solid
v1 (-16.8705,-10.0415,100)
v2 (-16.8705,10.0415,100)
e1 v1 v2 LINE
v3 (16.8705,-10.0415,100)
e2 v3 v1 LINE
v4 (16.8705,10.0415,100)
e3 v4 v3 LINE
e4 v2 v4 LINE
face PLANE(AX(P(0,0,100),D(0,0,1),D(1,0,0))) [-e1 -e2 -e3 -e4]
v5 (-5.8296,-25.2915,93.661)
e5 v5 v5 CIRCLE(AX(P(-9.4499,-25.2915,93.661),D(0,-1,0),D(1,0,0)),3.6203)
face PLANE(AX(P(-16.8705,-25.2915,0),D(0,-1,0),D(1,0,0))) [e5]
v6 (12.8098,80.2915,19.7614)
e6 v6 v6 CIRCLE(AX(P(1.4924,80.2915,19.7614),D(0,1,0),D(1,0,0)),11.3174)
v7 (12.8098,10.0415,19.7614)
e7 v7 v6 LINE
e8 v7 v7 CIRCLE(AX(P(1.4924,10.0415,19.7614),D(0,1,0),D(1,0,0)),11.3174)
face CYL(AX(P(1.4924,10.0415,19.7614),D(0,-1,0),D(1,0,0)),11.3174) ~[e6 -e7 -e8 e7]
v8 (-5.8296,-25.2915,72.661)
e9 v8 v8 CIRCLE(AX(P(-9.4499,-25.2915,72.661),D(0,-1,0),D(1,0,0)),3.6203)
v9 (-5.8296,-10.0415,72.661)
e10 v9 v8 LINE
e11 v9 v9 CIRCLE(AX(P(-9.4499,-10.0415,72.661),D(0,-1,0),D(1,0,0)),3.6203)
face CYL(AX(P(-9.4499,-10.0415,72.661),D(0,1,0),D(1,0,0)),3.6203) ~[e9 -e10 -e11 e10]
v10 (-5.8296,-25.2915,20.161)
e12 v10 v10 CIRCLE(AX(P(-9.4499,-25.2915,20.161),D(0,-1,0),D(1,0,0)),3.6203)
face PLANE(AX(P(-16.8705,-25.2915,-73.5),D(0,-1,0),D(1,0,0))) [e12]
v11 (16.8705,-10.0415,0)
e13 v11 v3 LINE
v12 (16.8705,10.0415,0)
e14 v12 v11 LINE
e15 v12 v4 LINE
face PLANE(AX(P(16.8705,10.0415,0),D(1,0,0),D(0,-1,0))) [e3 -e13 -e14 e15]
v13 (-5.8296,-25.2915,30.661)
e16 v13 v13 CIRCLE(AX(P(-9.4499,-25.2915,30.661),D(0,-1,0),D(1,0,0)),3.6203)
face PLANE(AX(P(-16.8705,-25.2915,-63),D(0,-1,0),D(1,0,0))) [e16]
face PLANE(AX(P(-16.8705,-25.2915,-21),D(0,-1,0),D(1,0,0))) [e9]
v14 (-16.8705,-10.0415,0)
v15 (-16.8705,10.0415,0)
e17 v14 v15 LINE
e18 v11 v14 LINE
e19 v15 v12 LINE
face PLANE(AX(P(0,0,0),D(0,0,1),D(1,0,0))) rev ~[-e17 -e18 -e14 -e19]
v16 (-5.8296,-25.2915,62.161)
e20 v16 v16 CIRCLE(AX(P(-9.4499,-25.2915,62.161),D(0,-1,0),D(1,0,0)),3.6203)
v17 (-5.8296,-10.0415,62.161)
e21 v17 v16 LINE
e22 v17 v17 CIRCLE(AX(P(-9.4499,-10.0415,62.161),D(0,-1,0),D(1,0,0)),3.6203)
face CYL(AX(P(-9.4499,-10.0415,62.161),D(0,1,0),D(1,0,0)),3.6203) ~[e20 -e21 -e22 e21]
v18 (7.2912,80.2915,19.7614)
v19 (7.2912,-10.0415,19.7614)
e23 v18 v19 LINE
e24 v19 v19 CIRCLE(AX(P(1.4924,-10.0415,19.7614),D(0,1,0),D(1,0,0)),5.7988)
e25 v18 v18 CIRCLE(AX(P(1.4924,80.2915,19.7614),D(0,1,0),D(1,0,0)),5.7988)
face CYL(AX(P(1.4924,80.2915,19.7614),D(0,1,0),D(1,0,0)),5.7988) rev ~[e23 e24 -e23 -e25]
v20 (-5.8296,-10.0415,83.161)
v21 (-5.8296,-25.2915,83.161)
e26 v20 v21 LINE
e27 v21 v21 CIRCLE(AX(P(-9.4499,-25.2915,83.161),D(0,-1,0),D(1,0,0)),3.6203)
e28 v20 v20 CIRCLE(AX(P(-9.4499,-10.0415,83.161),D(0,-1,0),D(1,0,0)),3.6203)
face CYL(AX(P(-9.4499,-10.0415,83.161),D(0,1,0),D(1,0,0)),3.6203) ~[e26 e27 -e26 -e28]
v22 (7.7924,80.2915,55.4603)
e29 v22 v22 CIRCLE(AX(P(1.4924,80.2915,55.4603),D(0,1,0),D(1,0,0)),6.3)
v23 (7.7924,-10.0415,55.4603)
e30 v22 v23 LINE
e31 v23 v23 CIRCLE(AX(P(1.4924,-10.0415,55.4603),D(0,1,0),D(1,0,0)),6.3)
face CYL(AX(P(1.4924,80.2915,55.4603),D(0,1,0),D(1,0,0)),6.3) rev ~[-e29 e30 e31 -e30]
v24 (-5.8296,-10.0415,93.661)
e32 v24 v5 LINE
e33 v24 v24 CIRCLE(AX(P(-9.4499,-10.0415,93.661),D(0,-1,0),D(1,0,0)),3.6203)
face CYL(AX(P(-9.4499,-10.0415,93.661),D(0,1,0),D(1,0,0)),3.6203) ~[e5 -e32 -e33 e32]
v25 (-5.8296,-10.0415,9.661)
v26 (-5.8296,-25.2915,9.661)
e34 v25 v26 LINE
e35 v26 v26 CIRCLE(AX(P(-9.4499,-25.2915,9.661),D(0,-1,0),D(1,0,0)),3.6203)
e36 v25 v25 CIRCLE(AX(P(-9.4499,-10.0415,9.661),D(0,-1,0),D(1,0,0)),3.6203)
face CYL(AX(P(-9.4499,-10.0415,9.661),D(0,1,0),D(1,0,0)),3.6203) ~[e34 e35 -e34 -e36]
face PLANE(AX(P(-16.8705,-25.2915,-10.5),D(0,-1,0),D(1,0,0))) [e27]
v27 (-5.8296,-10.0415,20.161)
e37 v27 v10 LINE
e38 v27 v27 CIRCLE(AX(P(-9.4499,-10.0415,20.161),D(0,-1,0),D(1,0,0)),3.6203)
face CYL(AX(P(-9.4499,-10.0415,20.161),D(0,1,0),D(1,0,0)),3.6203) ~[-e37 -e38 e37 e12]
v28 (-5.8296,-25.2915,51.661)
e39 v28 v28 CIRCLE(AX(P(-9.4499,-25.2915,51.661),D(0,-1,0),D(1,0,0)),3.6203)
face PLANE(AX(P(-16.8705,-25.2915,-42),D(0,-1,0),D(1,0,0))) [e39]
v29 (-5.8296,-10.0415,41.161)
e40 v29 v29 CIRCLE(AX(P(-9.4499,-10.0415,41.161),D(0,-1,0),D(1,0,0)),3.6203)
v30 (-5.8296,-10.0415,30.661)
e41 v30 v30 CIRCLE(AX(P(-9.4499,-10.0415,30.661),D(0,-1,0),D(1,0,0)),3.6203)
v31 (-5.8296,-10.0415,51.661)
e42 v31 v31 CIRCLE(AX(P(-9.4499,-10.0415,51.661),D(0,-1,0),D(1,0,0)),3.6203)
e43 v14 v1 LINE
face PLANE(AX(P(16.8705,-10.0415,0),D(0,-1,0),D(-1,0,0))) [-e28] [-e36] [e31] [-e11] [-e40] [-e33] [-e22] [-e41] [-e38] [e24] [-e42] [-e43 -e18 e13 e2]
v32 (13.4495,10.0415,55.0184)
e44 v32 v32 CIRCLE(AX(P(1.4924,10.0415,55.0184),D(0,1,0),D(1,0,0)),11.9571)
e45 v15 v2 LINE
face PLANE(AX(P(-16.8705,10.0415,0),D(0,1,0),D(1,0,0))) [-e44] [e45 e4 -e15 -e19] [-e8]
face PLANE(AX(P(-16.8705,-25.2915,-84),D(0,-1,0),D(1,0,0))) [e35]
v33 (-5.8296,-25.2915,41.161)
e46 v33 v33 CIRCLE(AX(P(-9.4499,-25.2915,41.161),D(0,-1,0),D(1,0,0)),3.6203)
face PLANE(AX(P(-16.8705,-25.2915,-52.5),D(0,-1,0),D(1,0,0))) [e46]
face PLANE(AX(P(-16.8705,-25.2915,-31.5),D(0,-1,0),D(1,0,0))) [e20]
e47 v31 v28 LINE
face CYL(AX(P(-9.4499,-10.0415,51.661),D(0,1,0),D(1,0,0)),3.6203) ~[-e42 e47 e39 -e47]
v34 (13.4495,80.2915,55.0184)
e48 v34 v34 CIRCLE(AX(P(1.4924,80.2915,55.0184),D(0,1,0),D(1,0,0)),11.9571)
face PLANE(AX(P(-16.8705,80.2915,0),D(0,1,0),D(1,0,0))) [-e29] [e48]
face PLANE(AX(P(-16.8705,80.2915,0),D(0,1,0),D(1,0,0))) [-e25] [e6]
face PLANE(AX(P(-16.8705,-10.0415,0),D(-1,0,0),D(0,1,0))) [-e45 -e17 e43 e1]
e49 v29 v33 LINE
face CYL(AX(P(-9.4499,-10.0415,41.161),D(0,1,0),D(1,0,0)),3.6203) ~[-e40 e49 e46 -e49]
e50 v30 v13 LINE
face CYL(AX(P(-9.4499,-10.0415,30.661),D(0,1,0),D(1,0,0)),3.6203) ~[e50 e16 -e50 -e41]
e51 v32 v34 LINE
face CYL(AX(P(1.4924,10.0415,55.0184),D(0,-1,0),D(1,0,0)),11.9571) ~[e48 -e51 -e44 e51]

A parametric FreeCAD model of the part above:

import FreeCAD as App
import Part
import Sketcher
from FreeCAD import Vector
Q = App.Units.Quantity

doc = App.newDocument("Part")
body = doc.addObject("PartDesign::Body", "Body")

sketch1 = body.newObject("Sketcher::SketchObject", "Sketch")
sketch1.AttachmentSupport = (doc.getObject("XY_Plane"), [""])
sketch1.MapMode = "FlatFace"
sketch1.addGeometry(Part.LineSegment(Vector(17, 10, 0), Vector(-17, 10, 0)), False)
sketch1.addGeometry(Part.LineSegment(Vector(-17, 10, 0), Vector(-17, -10, 0)), False)
sketch1.addGeometry(Part.LineSegment(Vector(-17, -10, 0), Vector(17, -10, 0)), False)
sketch1.addGeometry(Part.LineSegment(Vector(17, -10, 0), Vector(17, 10, 0)), False)
sketch1.addConstraint(Sketcher.Constraint("Coincident", 0, 2, 1, 1))
sketch1.addConstraint(Sketcher.Constraint("Coincident", 1, 2, 2, 1))
sketch1.addConstraint(Sketcher.Constraint("Coincident", 2, 2, 3, 1))
sketch1.addConstraint(Sketcher.Constraint("Coincident", 3, 2, 0, 1))
sketch1.addConstraint(Sketcher.Constraint("Horizontal", 0))
sketch1.addConstraint(Sketcher.Constraint("Vertical", 1))
sketch1.addConstraint(Sketcher.Constraint("Horizontal", 2))
sketch1.addConstraint(Sketcher.Constraint("Vertical", 3))
sketch1.addConstraint(Sketcher.Constraint("Symmetric", 0, 2, 2, 2, -1, 1))
sketch1.addConstraint(Sketcher.Constraint("DistanceX", 0, 2, 0, 1, Q("33.741 mm")))
sketch1.addConstraint(Sketcher.Constraint("DistanceY", 1, 2, 1, 1, Q("20.083 mm")))
pad1 = body.newObject("PartDesign::Pad", "Pad")
pad1.Profile = sketch1
pad1.Length = 100

sketch2 = body.newObject("Sketcher::SketchObject", "Sketch001")
sketch2.AttachmentSupport = (doc.getObject("XZ_Plane"), [""])
sketch2.MapMode = "FlatFace"
sketch2.AttachmentOffset = App.Placement(Vector(0, 0, -10.0415), App.Rotation())
sketch2.addGeometry(Part.Circle(Vector(1, 20, 0), Vector(0, 0, 1), 11), False)
sketch2.addGeometry(Part.Circle(Vector(1, 55, 0), Vector(0, 0, 1), 12), False)
sketch2.addConstraint(Sketcher.Constraint("Vertical", 0, 3, 1, 3))
sketch2.addConstraint(Sketcher.Constraint("Diameter", 0, Q("22.6348 mm")))
sketch2.addConstraint(Sketcher.Constraint("Diameter", 1, Q("23.9142 mm")))
sketch2.addConstraint(Sketcher.Constraint("DistanceY", 0, 3, 1, 3, Q("35.257 mm")))
sketch2.addConstraint(Sketcher.Constraint("DistanceX", -1, 1, 0, 3, Q("1.4924 mm")))
sketch2.addConstraint(Sketcher.Constraint("DistanceY", -1, 1, 0, 3, Q("19.7614 mm")))
pad2 = body.newObject("PartDesign::Pad", "Pad001")
pad2.Profile = sketch2
pad2.Length = 70.25
pad2.Reversed = True

sketch3 = body.newObject("Sketcher::SketchObject", "Sketch002")
sketch3.AttachmentSupport = (doc.getObject("XZ_Plane"), [""])
sketch3.MapMode = "FlatFace"
sketch3.AttachmentOffset = App.Placement(Vector(0, 0, -80.2915), App.Rotation())
sketch3.addGeometry(Part.Circle(Vector(1, 20, 0), Vector(0, 0, 1), 6), False)
sketch3.addGeometry(Part.Circle(Vector(1, 55, 0), Vector(0, 0, 1), 6), False)
sketch3.addConstraint(Sketcher.Constraint("Vertical", 0, 3, 1, 3))
sketch3.addConstraint(Sketcher.Constraint("Diameter", 1, Q("12.6 mm")))
sketch3.addConstraint(Sketcher.Constraint("Diameter", 0, Q("11.5976 mm")))
sketch3.addConstraint(Sketcher.Constraint("DistanceY", 0, 3, 1, 3, Q("35.699 mm")))
sketch3.addConstraint(Sketcher.Constraint("DistanceX", -1, 1, 0, 3, Q("1.4924 mm")))
sketch3.addConstraint(Sketcher.Constraint("DistanceY", -1, 1, 0, 3, Q("19.7614 mm")))
pocket1 = body.newObject("PartDesign::Pocket", "Pocket")
pocket1.Profile = sketch3
pocket1.Type = "ThroughAll"
pocket1.Reversed = True

sketch4 = body.newObject("Sketcher::SketchObject", "Sketch003")
sketch4.AttachmentSupport = (doc.getObject("XZ_Plane"), [""])
sketch4.MapMode = "FlatFace"
sketch4.AttachmentOffset = App.Placement(Vector(0, 0, 10.0415), App.Rotation())
sketch4.addGeometry(Part.Circle(Vector(-9.4, 93.7, 0), Vector(0, 0, 1), 3.6), False)
sketch4.addConstraint(Sketcher.Constraint("Diameter", 0, Q("7.2406 mm")))
sketch4.addConstraint(Sketcher.Constraint("DistanceX", 0, 3, -1, 1, Q("9.45 mm")))
sketch4.addConstraint(Sketcher.Constraint("DistanceY", -1, 1, 0, 3, Q("93.661 mm")))
pad3 = body.newObject("PartDesign::Pad", "Pad002")
pad3.Profile = sketch4
pad3.Length = 15.25
doc.recompute()

linearpattern = body.newObject("PartDesign::LinearPattern", "LinearPattern")
linearpattern.Originals = [pad3]
linearpattern.Direction = (doc.getObject("Z_Axis"), [""])
linearpattern.Mode = "offset"
linearpattern.Offset = 10.5
linearpattern.Occurrences = 9
linearpattern.Reversed = True
body.Tip = linearpattern

doc.recompute()
